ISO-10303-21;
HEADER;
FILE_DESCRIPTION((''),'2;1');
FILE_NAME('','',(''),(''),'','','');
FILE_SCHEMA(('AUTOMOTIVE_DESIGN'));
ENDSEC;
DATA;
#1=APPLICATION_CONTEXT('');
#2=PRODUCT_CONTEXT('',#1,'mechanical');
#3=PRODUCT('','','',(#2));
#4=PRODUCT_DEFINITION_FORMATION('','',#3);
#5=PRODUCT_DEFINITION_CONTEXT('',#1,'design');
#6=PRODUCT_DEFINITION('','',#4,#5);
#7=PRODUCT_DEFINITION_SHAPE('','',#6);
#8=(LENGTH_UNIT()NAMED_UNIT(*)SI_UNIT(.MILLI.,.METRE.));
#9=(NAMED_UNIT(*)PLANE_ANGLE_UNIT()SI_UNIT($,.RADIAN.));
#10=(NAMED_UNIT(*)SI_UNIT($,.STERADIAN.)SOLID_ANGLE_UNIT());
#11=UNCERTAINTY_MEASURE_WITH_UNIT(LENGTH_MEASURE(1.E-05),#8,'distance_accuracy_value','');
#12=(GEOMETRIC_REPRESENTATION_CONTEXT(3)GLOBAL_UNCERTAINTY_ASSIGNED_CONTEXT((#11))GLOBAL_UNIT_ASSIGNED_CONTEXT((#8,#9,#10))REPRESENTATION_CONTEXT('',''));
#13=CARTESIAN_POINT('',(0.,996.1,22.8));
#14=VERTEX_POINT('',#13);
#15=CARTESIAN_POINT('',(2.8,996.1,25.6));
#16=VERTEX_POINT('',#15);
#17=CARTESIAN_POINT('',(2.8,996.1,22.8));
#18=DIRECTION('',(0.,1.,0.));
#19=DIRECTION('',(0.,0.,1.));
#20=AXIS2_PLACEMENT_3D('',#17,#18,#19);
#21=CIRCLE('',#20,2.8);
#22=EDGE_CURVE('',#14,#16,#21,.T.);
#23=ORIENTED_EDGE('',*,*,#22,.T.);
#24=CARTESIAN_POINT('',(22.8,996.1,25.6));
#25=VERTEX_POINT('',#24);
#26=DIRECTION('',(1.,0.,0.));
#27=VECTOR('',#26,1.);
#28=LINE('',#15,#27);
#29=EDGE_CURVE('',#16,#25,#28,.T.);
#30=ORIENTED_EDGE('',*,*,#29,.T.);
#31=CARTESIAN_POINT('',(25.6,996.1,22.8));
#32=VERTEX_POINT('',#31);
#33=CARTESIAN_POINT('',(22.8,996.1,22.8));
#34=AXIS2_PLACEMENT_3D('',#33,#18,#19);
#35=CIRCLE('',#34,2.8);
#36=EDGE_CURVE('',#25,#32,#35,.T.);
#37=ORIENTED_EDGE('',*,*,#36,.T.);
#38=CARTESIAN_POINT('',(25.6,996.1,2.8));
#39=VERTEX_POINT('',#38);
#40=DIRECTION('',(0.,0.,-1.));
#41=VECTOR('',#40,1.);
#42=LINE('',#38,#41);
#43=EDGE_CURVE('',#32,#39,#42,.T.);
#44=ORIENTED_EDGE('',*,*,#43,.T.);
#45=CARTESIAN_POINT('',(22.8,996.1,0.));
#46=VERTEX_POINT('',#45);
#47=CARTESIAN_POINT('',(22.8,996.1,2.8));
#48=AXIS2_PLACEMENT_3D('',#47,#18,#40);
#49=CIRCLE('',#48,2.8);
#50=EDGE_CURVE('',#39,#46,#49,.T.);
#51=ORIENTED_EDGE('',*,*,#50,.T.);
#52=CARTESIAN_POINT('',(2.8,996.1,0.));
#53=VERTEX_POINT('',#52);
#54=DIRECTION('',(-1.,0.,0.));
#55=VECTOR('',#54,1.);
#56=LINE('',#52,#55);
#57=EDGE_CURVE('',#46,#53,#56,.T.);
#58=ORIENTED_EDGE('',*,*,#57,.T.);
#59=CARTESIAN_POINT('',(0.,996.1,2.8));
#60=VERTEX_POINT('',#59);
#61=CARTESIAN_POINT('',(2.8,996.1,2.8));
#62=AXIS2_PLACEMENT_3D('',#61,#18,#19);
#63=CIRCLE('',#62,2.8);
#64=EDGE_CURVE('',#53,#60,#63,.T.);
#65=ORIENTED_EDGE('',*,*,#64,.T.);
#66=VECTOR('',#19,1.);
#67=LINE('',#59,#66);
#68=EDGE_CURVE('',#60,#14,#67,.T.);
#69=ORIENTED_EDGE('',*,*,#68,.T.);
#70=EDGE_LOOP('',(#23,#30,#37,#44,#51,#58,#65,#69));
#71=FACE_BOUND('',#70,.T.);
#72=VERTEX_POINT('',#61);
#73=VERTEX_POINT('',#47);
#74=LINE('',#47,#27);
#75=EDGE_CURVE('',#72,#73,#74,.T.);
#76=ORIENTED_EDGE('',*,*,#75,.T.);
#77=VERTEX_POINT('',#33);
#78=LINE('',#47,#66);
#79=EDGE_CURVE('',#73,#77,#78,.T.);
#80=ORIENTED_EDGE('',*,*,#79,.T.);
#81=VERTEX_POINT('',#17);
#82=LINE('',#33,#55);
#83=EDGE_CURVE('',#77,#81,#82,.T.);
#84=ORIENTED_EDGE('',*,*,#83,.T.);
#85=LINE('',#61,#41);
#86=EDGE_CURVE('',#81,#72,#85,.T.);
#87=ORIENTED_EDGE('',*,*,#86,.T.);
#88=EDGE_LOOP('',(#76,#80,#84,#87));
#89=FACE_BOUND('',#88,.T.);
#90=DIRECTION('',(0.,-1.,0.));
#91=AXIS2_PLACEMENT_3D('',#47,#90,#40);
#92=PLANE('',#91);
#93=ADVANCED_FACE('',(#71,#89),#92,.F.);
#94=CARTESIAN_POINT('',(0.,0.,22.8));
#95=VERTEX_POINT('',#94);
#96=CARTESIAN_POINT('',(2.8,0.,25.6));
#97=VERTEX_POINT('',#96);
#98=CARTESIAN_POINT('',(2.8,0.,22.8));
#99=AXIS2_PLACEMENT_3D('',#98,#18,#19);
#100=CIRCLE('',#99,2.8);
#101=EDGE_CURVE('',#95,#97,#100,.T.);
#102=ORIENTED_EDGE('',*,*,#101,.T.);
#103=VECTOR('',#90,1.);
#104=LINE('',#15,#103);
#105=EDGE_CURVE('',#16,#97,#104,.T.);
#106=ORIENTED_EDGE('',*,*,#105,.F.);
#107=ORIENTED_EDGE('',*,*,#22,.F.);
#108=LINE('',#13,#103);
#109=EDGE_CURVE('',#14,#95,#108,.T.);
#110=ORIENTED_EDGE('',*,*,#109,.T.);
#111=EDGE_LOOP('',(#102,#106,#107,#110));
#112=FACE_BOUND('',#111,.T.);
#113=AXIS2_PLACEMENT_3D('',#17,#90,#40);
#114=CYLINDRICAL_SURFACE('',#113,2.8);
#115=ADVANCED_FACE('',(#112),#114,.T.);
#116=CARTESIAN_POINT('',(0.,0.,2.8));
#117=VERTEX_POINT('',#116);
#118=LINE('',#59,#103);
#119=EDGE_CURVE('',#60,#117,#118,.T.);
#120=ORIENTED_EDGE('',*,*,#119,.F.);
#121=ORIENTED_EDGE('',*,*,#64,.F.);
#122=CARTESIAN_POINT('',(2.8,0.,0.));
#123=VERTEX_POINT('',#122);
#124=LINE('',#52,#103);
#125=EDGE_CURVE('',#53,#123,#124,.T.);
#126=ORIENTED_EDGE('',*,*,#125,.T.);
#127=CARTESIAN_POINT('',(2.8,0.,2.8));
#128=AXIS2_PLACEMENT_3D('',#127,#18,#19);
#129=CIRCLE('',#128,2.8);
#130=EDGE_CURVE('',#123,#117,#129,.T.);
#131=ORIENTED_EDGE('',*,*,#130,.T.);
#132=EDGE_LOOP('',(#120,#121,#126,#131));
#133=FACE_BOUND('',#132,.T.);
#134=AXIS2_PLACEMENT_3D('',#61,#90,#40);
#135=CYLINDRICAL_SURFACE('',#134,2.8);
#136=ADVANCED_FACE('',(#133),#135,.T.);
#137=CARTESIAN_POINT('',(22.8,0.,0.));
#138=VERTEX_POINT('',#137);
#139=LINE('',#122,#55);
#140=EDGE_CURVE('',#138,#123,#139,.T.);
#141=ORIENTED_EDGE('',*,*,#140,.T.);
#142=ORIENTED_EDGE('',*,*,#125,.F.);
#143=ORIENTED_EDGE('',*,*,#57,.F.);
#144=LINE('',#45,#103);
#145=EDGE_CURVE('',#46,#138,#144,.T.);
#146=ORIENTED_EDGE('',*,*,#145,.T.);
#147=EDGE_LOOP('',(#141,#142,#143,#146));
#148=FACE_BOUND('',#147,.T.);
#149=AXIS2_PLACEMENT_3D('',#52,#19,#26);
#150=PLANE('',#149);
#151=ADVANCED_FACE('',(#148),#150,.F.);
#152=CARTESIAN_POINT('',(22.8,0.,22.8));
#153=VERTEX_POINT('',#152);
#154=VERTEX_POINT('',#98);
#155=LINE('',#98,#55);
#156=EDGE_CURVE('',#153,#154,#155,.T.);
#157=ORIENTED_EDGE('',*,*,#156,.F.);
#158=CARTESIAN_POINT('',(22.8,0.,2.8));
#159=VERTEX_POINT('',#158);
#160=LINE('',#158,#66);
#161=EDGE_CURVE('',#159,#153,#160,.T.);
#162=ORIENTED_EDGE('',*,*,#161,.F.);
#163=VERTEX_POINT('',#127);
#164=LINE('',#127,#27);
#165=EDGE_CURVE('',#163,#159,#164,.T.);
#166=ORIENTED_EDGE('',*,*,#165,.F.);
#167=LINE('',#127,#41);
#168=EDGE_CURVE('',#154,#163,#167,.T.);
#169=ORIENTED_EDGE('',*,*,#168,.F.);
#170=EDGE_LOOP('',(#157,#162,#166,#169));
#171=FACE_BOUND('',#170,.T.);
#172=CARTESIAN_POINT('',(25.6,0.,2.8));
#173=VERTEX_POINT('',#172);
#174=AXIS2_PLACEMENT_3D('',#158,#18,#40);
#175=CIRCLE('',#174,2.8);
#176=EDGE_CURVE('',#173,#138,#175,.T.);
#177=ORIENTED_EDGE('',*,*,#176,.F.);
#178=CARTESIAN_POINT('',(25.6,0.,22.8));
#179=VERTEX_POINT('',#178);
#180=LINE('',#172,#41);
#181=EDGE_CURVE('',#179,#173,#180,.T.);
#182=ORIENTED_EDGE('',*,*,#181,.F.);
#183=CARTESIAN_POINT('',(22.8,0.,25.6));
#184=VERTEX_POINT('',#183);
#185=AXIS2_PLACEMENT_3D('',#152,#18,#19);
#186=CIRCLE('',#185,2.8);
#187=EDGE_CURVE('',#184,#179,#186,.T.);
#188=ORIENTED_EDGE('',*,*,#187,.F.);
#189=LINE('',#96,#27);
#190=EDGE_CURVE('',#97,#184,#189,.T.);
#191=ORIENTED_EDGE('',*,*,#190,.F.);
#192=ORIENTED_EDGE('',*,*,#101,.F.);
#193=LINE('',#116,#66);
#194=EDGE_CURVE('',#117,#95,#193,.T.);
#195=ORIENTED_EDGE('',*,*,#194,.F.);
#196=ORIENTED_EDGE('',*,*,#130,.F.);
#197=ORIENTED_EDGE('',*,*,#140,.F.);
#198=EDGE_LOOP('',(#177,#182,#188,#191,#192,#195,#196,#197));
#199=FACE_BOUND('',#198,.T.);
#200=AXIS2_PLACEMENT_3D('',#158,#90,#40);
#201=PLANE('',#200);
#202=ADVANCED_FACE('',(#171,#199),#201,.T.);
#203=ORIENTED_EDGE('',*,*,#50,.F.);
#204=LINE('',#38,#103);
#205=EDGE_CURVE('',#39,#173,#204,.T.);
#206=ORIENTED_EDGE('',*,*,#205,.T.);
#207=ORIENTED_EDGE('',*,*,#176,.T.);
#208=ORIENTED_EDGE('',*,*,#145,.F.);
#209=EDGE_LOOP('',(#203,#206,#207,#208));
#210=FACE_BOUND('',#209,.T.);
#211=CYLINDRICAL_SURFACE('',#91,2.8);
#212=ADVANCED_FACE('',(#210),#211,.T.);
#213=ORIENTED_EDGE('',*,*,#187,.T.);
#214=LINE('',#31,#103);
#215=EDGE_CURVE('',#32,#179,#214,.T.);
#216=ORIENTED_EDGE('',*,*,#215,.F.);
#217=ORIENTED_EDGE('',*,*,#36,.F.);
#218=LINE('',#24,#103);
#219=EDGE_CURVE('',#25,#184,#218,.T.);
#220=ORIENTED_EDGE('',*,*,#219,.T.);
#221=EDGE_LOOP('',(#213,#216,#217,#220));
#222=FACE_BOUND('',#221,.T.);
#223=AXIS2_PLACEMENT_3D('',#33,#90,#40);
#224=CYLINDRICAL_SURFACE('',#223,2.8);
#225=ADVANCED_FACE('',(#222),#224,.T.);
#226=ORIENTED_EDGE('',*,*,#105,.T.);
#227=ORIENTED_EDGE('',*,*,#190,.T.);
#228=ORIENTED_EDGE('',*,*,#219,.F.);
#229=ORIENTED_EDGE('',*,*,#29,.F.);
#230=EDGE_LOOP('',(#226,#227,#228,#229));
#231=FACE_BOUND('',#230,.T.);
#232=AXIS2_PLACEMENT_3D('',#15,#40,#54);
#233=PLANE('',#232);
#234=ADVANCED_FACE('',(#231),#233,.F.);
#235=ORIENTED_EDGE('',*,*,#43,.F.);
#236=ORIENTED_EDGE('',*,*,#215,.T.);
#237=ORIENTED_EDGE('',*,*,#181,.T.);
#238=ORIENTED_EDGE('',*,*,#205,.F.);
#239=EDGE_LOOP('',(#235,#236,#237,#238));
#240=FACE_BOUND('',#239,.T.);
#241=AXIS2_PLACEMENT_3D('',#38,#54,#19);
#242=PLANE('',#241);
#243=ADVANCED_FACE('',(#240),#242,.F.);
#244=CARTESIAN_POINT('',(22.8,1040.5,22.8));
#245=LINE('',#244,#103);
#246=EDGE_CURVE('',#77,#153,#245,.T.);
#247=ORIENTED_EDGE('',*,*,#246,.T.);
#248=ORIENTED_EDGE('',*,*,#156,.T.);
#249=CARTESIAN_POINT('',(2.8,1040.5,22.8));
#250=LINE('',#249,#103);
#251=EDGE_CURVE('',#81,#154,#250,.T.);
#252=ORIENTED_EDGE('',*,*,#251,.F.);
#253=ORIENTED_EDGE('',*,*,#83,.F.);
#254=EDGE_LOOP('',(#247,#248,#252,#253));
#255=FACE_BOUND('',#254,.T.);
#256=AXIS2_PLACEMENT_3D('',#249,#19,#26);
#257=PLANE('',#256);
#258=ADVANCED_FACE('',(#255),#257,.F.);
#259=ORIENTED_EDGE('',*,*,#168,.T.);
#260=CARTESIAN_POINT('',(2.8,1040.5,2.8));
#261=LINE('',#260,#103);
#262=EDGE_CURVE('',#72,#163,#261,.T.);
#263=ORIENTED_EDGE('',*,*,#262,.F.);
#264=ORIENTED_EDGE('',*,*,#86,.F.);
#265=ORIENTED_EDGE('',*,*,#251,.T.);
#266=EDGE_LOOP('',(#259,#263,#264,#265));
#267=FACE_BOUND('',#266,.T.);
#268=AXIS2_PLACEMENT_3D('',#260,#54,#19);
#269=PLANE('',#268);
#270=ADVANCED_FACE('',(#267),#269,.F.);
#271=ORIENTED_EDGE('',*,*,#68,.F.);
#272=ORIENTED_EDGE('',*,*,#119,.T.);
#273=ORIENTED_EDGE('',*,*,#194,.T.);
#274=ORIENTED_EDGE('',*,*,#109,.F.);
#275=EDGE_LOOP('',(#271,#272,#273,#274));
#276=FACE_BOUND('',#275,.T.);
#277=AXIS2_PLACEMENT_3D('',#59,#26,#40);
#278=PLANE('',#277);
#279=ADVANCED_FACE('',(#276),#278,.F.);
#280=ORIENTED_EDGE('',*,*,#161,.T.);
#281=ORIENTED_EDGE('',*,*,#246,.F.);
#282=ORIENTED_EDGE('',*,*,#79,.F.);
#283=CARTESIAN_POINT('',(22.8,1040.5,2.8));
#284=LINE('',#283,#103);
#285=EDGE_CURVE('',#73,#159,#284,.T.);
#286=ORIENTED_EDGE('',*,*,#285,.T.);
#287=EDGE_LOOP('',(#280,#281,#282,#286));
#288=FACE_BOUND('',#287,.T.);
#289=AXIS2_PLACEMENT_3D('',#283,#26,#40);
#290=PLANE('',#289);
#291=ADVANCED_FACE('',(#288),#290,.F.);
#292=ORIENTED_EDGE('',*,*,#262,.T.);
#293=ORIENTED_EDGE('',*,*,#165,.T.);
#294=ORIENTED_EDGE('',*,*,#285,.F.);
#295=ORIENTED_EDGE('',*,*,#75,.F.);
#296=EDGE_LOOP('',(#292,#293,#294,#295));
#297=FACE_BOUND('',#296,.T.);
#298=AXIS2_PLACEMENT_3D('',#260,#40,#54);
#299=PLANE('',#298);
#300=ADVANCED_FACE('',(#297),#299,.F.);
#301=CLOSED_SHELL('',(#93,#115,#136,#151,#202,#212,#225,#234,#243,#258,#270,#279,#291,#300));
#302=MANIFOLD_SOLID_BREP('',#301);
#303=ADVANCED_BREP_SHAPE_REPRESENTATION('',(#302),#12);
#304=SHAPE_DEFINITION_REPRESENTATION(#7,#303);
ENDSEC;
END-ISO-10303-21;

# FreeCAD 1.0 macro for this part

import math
import FreeCAD as App
import Part
import Sketcher
from FreeCAD import Vector
Q = App.Units.Quantity


def add_polygon(sketch, points):
    """Adds a closed chain of lines whose ends are joined by coincident constraints."""
    first, n = sketch.GeometryCount, len(points)
    for a, b in zip(points, points[1:] + points[:1]):
        sketch.addGeometry(Part.LineSegment(App.Vector(*a, 0), App.Vector(*b, 0)), False)
    for i in range(n):
        sketch.addConstraint(Sketcher.Constraint("Coincident", first + i, 2, first + (i + 1) % n, 1))

doc = App.newDocument("Part")
params = doc.addObject("Spreadsheet::Sheet", "Params")
for row, (alias, value) in enumerate([
    ("sketch1_radius", "2.8 mm"),
    ("sketch1_width", "20 mm"),
    ("pad1_length", "996.1 mm"),
    ("sketch2_width", "20 mm"),
    ("pocket1_length", "1040.5 mm"),
], start=1):
    params.set(f"A{row}", alias)
    params.set(f"B{row}", "=" + value)
    params.setAlias(f"B{row}", alias)

body = doc.addObject("PartDesign::Body", "Body")

# Sketch on XZ plane
sketch1 = body.newObject("Sketcher::SketchObject", "Sketch")
sketch1.AttachmentSupport = (doc.getObject("XZ_Plane"), [""])
sketch1.MapMode = "FlatFace"
sketch1.addGeometry([
    Part.LineSegment(Vector(22.8, 0, 0), Vector(2.8, 0, 0)),  # 0
    Part.ArcOfCircle(Part.Circle(Vector(2.8, 2.8, 0), Vector(0, 0, 1), 2.8), math.radians(-180), math.radians(-90)),  # 1
    Part.LineSegment(Vector(0, 2.8, 0), Vector(0, 22.8, 0)),  # 2
    Part.ArcOfCircle(Part.Circle(Vector(2.8, 22.8, 0), Vector(0, 0, 1), 2.8), math.radians(90), math.radians(180)),  # 3
    Part.LineSegment(Vector(2.8, 25.6, 0), Vector(22.8, 25.6, 0)),  # 4
    Part.ArcOfCircle(Part.Circle(Vector(22.8, 22.8, 0), Vector(0, 0, 1), 2.8), math.radians(0), math.radians(90)),  # 5
    Part.LineSegment(Vector(25.6, 22.8, 0), Vector(25.6, 2.8, 0)),  # 6
    Part.ArcOfCircle(Part.Circle(Vector(22.8, 2.8, 0), Vector(0, 0, 1), 2.8), math.radians(-90), math.radians(0)),  # 7
], False)
sketch1.addConstraint([
    Sketcher.Constraint("Tangent", 0, 2, 1, 2),
    Sketcher.Constraint("Tangent", 1, 1, 2, 1),
    Sketcher.Constraint("Tangent", 2, 2, 3, 2),
    Sketcher.Constraint("Tangent", 3, 1, 4, 1),
    Sketcher.Constraint("Tangent", 4, 2, 5, 2),
    Sketcher.Constraint("Tangent", 5, 1, 6, 1),
    Sketcher.Constraint("Tangent", 6, 2, 7, 2),
    Sketcher.Constraint("Tangent", 7, 1, 0, 1),
    Sketcher.Constraint("Horizontal", 0),
    Sketcher.Constraint("Vertical", 2),
    Sketcher.Constraint("Horizontal", 4),
    Sketcher.Constraint("Vertical", 6),
    Sketcher.Constraint("Equal", 1, 3),
    Sketcher.Constraint("Equal", 3, 5),
    Sketcher.Constraint("Equal", 5, 7),
    Sketcher.Constraint("PointOnObject", 0, 2, -1),
    Sketcher.Constraint("PointOnObject", 1, 1, -2),
    Sketcher.Constraint("Equal", 4, 2),
    Sketcher.Constraint("Radius", 1, Q("2.8 mm")),
    Sketcher.Constraint("DistanceX", 0, 2, 0, 1, Q("20 mm")),
])
sketch1.setExpression("Constraints[18]", "Params.sketch1_radius")
sketch1.setExpression("Constraints[19]", "Params.sketch1_width")
pad1 = body.newObject("PartDesign::Pad", "Pad")
pad1.Profile = sketch1
pad1.setExpression("Length", "Params.pad1_length")
pad1.Reversed = True

# Sketch on XZ plane
sketch2 = body.newObject("Sketcher::SketchObject", "Sketch001")
sketch2.AttachmentSupport = (doc.getObject("XZ_Plane"), [""])
sketch2.MapMode = "FlatFace"
add_polygon(sketch2, [(23, 3), (23, 23), (3, 23), (3, 3)])  # lines 0-3
sketch2.addConstraint([
    Sketcher.Constraint("Vertical", 0),
    Sketcher.Constraint("Horizontal", 1),
    Sketcher.Constraint("Vertical", 2),
    Sketcher.Constraint("Horizontal", 3),
    Sketcher.Constraint("Equal", 3, 0),
    Sketcher.Constraint("DistanceX", 1, 2, 1, 1, Q("20 mm")),
    Sketcher.Constraint("DistanceX", -1, 1, 0, 2, Q("22.8 mm")),
    Sketcher.Constraint("DistanceY", -1, 1, 0, 2, Q("22.8 mm")),
])
sketch2.setExpression("Constraints[9]", "Params.sketch2_width")
pocket1 = body.newObject("PartDesign::Pocket", "Pocket")
pocket1.Profile = sketch2
pocket1.setExpression("Length", "Params.pocket1_length")

doc.recompute()
